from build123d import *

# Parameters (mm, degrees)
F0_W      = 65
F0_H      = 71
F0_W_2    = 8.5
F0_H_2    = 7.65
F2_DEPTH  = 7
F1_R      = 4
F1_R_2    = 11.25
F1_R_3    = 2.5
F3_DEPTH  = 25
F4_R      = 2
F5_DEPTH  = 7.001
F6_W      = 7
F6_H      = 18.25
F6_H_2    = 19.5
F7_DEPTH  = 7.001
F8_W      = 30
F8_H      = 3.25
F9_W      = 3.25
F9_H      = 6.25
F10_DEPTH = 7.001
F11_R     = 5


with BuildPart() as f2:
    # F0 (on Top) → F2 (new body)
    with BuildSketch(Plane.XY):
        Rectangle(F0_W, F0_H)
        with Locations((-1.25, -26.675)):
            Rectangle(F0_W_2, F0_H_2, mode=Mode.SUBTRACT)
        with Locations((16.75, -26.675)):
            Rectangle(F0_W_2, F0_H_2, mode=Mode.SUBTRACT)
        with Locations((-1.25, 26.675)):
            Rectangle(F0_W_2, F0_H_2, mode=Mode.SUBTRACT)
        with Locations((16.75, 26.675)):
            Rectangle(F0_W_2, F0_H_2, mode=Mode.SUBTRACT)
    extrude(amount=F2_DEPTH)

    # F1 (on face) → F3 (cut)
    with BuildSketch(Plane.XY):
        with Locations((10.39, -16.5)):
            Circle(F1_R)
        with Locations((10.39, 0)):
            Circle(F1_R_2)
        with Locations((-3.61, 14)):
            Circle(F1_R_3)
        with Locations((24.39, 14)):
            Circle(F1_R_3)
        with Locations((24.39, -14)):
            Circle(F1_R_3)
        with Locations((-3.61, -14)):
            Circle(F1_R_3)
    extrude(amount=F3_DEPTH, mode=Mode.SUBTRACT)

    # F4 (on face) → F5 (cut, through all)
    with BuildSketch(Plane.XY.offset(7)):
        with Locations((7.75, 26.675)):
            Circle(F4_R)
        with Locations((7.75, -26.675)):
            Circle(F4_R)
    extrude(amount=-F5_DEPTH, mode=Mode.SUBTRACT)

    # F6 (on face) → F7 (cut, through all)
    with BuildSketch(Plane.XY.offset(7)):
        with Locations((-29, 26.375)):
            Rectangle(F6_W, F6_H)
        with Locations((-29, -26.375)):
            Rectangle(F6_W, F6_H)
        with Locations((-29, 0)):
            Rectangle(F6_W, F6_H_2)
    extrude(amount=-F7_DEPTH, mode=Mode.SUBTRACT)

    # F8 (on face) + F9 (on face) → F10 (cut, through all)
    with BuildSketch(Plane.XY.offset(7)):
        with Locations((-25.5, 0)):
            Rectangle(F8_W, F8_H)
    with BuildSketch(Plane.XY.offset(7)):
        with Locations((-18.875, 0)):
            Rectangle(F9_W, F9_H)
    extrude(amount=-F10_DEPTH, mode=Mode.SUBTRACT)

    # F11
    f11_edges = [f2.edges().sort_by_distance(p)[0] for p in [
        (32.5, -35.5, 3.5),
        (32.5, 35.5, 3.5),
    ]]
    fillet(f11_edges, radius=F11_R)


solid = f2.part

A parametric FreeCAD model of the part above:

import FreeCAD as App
import Part
import Sketcher

V = App.Vector
Q = App.Units.Quantity


def edges_at(feature, points):
    """Names of the edges that pass closest to the given points."""
    edges = feature.Shape.Edges
    near = lambda p: min(range(len(edges)), key=lambda i: edges[i].distToShape(Part.Vertex(*p))[0])
    return sorted({f"Edge{near(p) + 1}" for p in points})

doc = App.newDocument("Part")
body = doc.addObject("PartDesign::Body", "Body")

# Sketch on XY plane
sketch1 = body.newObject("Sketcher::SketchObject", "Sketch")
sketch1.AttachmentSupport = (doc.getObject("XY_Plane"), [""])
sketch1.MapMode = "FlatFace"
sketch1.addGeometry([
    Part.LineSegment(V(-32, 36, 0), V(-32, -36, 0)),  # 0
    Part.LineSegment(V(-32, -36, 0), V(32, -36, 0)),  # 1
    Part.LineSegment(V(32, -36, 0), V(32, 36, 0)),  # 2
    Part.LineSegment(V(32, 36, 0), V(-32, 36, 0)),  # 3
    Part.LineSegment(V(3, -30, 0), V(-6, -30, 0)),  # 4
    Part.LineSegment(V(-6, -30, 0), V(-6, -23, 0)),  # 5
    Part.LineSegment(V(-6, -23, 0), V(3, -23, 0)),  # 6
    Part.LineSegment(V(3, -23, 0), V(3, -30, 0)),  # 7
    Part.LineSegment(V(21, -30, 0), V(12, -30, 0)),  # 8
    Part.LineSegment(V(12, -30, 0), V(12, -23, 0)),  # 9
    Part.LineSegment(V(12, -23, 0), V(21, -23, 0)),  # 10
    Part.LineSegment(V(21, -23, 0), V(21, -30, 0)),  # 11
    Part.LineSegment(V(3, 23, 0), V(-6, 23, 0)),  # 12
    Part.LineSegment(V(-6, 23, 0), V(-6, 30, 0)),  # 13
    Part.LineSegment(V(-6, 30, 0), V(3, 30, 0)),  # 14
    Part.LineSegment(V(3, 30, 0), V(3, 23, 0)),  # 15
    Part.LineSegment(V(21, 23, 0), V(12, 23, 0)),  # 16
    Part.LineSegment(V(12, 23, 0), V(12, 30, 0)),  # 17
    Part.LineSegment(V(12, 30, 0), V(21, 30, 0)),  # 18
    Part.LineSegment(V(21, 30, 0), V(21, 23, 0)),  # 19
], False)
sketch1.addConstraint([
    Sketcher.Constraint("Coincident", 0, 2, 1, 1),
    Sketcher.Constraint("Coincident", 1, 2, 2, 1),
    Sketcher.Constraint("Coincident", 2, 2, 3, 1),
    Sketcher.Constraint("Coincident", 3, 2, 0, 1),
    Sketcher.Constraint("Coincident", 4, 2, 5, 1),
    Sketcher.Constraint("Coincident", 5, 2, 6, 1),
    Sketcher.Constraint("Coincident", 6, 2, 7, 1),
    Sketcher.Constraint("Coincident", 7, 2, 4, 1),
    Sketcher.Constraint("Coincident", 8, 2, 9, 1),
    Sketcher.Constraint("Coincident", 9, 2, 10, 1),
    Sketcher.Constraint("Coincident", 10, 2, 11, 1),
    Sketcher.Constraint("Coincident", 11, 2, 8, 1),
    Sketcher.Constraint("Coincident", 12, 2, 13, 1),
    Sketcher.Constraint("Coincident", 13, 2, 14, 1),
    Sketcher.Constraint("Coincident", 14, 2, 15, 1),
    Sketcher.Constraint("Coincident", 15, 2, 12, 1),
    Sketcher.Constraint("Coincident", 16, 2, 17, 1),
    Sketcher.Constraint("Coincident", 17, 2, 18, 1),
    Sketcher.Constraint("Coincident", 18, 2, 19, 1),
    Sketcher.Constraint("Coincident", 19, 2, 16, 1),
    Sketcher.Constraint("Vertical", 0),
    Sketcher.Constraint("Horizontal", 1),
    Sketcher.Constraint("Vertical", 2),
    Sketcher.Constraint("Horizontal", 3),
    Sketcher.Constraint("Horizontal", 4),
    Sketcher.Constraint("Vertical", 5),
    Sketcher.Constraint("Horizontal", 6),
    Sketcher.Constraint("Vertical", 7),
    Sketcher.Constraint("Horizontal", 8),
    Sketcher.Constraint("Vertical", 9),
    Sketcher.Constraint("Horizontal", 10),
    Sketcher.Constraint("Vertical", 11),
    Sketcher.Constraint("Horizontal", 12),
    Sketcher.Constraint("Vertical", 13),
    Sketcher.Constraint("Horizontal", 14),
    Sketcher.Constraint("Vertical", 15),
    Sketcher.Constraint("Horizontal", 16),
    Sketcher.Constraint("Vertical", 17),
    Sketcher.Constraint("Horizontal", 18),
    Sketcher.Constraint("Vertical", 19),
    Sketcher.Constraint("Symmetric", 0, 2, 2, 2, -1, 1),
    Sketcher.Constraint("Symmetric", 5, 2, 12, 2, -1),
    Sketcher.Constraint("Symmetric", 7, 2, 14, 2, -1),
    Sketcher.Constraint("Symmetric", 9, 2, 16, 2, -1),
    Sketcher.Constraint("Symmetric", 11, 2, 18, 2, -1),
    Sketcher.Constraint("Horizontal", 7, 2, 8, 2),
    Sketcher.Constraint("Horizontal", 6, 2, 9, 2),
    Sketcher.Constraint("Equal", 6, 8),
    Sketcher.Constraint("DistanceX", 1, 1, 1, 2, Q("65 mm")),
    Sketcher.Constraint("DistanceY", 0, 2, 0, 1, Q("71 mm")),
    Sketcher.Constraint("DistanceX", 4, 2, 4, 1, Q("8.5 mm")),
    Sketcher.Constraint("DistanceX", -1, 1, 6, 2, Q("3 mm")),
    Sketcher.Constraint("DistanceX", -1, 1, 10, 2, Q("21 mm")),
    Sketcher.Constraint("DistanceY", 0, 2, 4, 2, Q("5 mm")),
    Sketcher.Constraint("DistanceY", 5, 1, 5, 2, Q("7.65 mm")),
])
pad1 = body.newObject("PartDesign::Pad", "Pad")
pad1.Profile = sketch1
pad1.Length = 7

# Sketch on XY plane
sketch2 = body.newObject("Sketcher::SketchObject", "Sketch001")
sketch2.AttachmentSupport = (doc.getObject("XY_Plane"), [""])
sketch2.MapMode = "FlatFace"
sketch2.addGeometry([
    Part.Circle(V(10.4, -16.5, 0), V(0, 0, 1), 4),  # 0
    Part.Circle(V(10.4, 0, 0), V(0, 0, 1), 11.2),  # 1
    Part.Circle(V(-3.6, 14, 0), V(0, 0, 1), 2.5),  # 2
    Part.Circle(V(24.4, 14, 0), V(0, 0, 1), 2.5),  # 3
    Part.Circle(V(24.4, -14, 0), V(0, 0, 1), 2.5),  # 4
    Part.Circle(V(-3.6, -14, 0), V(0, 0, 1), 2.5),  # 5
], False)
sketch2.addConstraint([
    Sketcher.Constraint("Equal", 2, 3),
    Sketcher.Constraint("Equal", 3, 4),
    Sketcher.Constraint("Equal", 4, 5),
    Sketcher.Constraint("Symmetric", 3, 3, 4, 3, -1),
    Sketcher.Constraint("Symmetric", 2, 3, 5, 3, -1),
    Sketcher.Constraint("PointOnObject", 1, 3, -1),
    Sketcher.Constraint("Horizontal", 2, 3, 3, 3),
    Sketcher.Constraint("Vertical", 0, 3, 1, 3),
    Sketcher.Constraint("Diameter", 0, Q("8 mm")),
    Sketcher.Constraint("Diameter", 2, Q("5 mm")),
    Sketcher.Constraint("Diameter", 1, Q("22.5 mm")),
    Sketcher.Constraint("DistanceY", -1, 1, 2, 3, Q("14 mm")),
    Sketcher.Constraint("DistanceX", 2, 3, 1, 3, Q("14 mm")),
    Sketcher.Constraint("DistanceX", 1, 3, 3, 3, Q("14 mm")),
    Sketcher.Constraint("DistanceY", 0, 3, -1, 1, Q("16.5 mm")),
    Sketcher.Constraint("DistanceX", -1, 1, 0, 3, Q("10.39 mm")),
])
pocket1 = body.newObject("PartDesign::Pocket", "Pocket")
pocket1.Profile = sketch2
pocket1.Length = 25
pocket1.Reversed = True

# Sketch on XY plane
sketch3 = body.newObject("Sketcher::SketchObject", "Sketch002")
sketch3.AttachmentSupport = (doc.getObject("XY_Plane"), [""])
sketch3.MapMode = "FlatFace"
sketch3.AttachmentOffset = App.Placement(V(0, 0, 7), App.Rotation())
sketch3.addGeometry([
    Part.Circle(V(7.8, 26.7, 0), V(0, 0, 1), 2),
    Part.Circle(V(7.8, -26.7, 0), V(0, 0, 1), 2),
], False)
sketch3.addConstraint([
    Sketcher.Constraint("Equal", 0, 1),
    Sketcher.Constraint("Symmetric", 0, 3, 1, 3, -1),
    Sketcher.Constraint("Diameter", 0, Q("4 mm")),
    Sketcher.Constraint("DistanceX", -1, 1, 0, 3, Q("7.75 mm")),
    Sketcher.Constraint("DistanceY", 1, 3, 0, 3, Q("53.35 mm")),
])
pocket2 = body.newObject("PartDesign::Pocket", "Pocket001")
pocket2.Profile = sketch3
pocket2.Type = "ThroughAll"

# Sketch on XY plane
sketch4 = body.newObject("Sketcher::SketchObject", "Sketch003")
sketch4.AttachmentSupport = (doc.getObject("XY_Plane"), [""])
sketch4.MapMode = "FlatFace"
sketch4.AttachmentOffset = App.Placement(V(0, 0, 7), App.Rotation())
sketch4.addGeometry([
    Part.LineSegment(V(-32, 36, 0), V(-32, 17, 0)),  # 0
    Part.LineSegment(V(-32, 17, 0), V(-26, 17, 0)),  # 1
    Part.LineSegment(V(-26, 17, 0), V(-26, 36, 0)),  # 2
    Part.LineSegment(V(-26, 36, 0), V(-32, 36, 0)),  # 3
    Part.LineSegment(V(-32, -17, 0), V(-32, -36, 0)),  # 4
    Part.LineSegment(V(-32, -36, 0), V(-26, -36, 0)),  # 5
    Part.LineSegment(V(-26, -36, 0), V(-26, -17, 0)),  # 6
    Part.LineSegment(V(-26, -17, 0), V(-32, -17, 0)),  # 7
    Part.LineSegment(V(-32, 10, 0), V(-32, -10, 0)),  # 8
    Part.LineSegment(V(-32, -10, 0), V(-26, -10, 0)),  # 9
    Part.LineSegment(V(-26, -10, 0), V(-26, 10, 0)),  # 10
    Part.LineSegment(V(-26, 10, 0), V(-32, 10, 0)),  # 11
], False)
sketch4.addConstraint([
    Sketcher.Constraint("Coincident", 0, 2, 1, 1),
    Sketcher.Constraint("Coincident", 1, 2, 2, 1),
    Sketcher.Constraint("Coincident", 2, 2, 3, 1),
    Sketcher.Constraint("Coincident", 3, 2, 0, 1),
    Sketcher.Constraint("Coincident", 4, 2, 5, 1),
    Sketcher.Constraint("Coincident", 5, 2, 6, 1),
    Sketcher.Constraint("Coincident", 6, 2, 7, 1),
    Sketcher.Constraint("Coincident", 7, 2, 4, 1),
    Sketcher.Constraint("Coincident", 8, 2, 9, 1),
    Sketcher.Constraint("Coincident", 9, 2, 10, 1),
    Sketcher.Constraint("Coincident", 10, 2, 11, 1),
    Sketcher.Constraint("Coincident", 11, 2, 8, 1),
    Sketcher.Constraint("Vertical", 0),
    Sketcher.Constraint("Horizontal", 1),
    Sketcher.Constraint("Vertical", 2),
    Sketcher.Constraint("Horizontal", 3),
    Sketcher.Constraint("Vertical", 4),
    Sketcher.Constraint("Horizontal", 5),
    Sketcher.Constraint("Vertical", 6),
    Sketcher.Constraint("Horizontal", 7),
    Sketcher.Constraint("Vertical", 8),
    Sketcher.Constraint("Horizontal", 9),
    Sketcher.Constraint("Vertical", 10),
    Sketcher.Constraint("Horizontal", 11),
    Sketcher.Constraint("Symmetric", 3, 2, 4, 2, -1),
    Sketcher.Constraint("Symmetric", 1, 2, 6, 2, -1),
    Sketcher.Constraint("Vertical", 7, 2, 8, 2),
    Sketcher.Constraint("Vertical", 6, 2, 9, 2),
    Sketcher.Constraint("DistanceX", 1, 1, 1, 2, Q("7 mm")),
    Sketcher.Constraint("DistanceY", 8, 2, 8, 1, Q("19.5 mm")),
    Sketcher.Constraint("DistanceY", 4, 2, 3, 2, Q("71 mm")),
    Sketcher.Constraint("DistanceY", 8, 2, 0, 2, Q("27 mm")),
    Sketcher.Constraint("DistanceY", 0, 2, 0, 1, Q("18.25 mm")),
    Sketcher.Constraint("DistanceX", 0, 2, -1, 1, Q("32.5 mm")),
])
pocket3 = body.newObject("PartDesign::Pocket", "Pocket002")
pocket3.Profile = sketch4
pocket3.Type = "ThroughAll"

# Sketch on XY plane
sketch5 = body.newObject("Sketcher::SketchObject", "Sketch004")
sketch5.AttachmentSupport = (doc.getObject("XY_Plane"), [""])
sketch5.MapMode = "FlatFace"
sketch5.AttachmentOffset = App.Placement(V(0, 0, 7), App.Rotation())
sketch5.addGeometry([
    Part.LineSegment(V(-40.5, 1.6, 0), V(-40.5, -1.6, 0)),  # 0
    Part.LineSegment(V(-40.5, -1.6, 0), V(-20.5, -1.6, 0)),  # 1
    Part.LineSegment(V(-20.5, -1.6, 0), V(-20.5, -3.1, 0)),  # 2
    Part.LineSegment(V(-20.5, -3.1, 0), V(-17.2, -3.1, 0)),  # 3
    Part.LineSegment(V(-17.2, -3.1, 0), V(-17.2, -1.6, 0)),  # 4
    Part.LineSegment(V(-17.2, -1.6, 0), V(-10.5, -1.6, 0)),  # 5
    Part.LineSegment(V(-10.5, -1.6, 0), V(-10.5, 1.6, 0)),  # 6
    Part.LineSegment(V(-10.5, 1.6, 0), V(-17.2, 1.6, 0)),  # 7
    Part.LineSegment(V(-17.2, 1.6, 0), V(-17.2, 3.1, 0)),  # 8
    Part.LineSegment(V(-17.2, 3.1, 0), V(-20.5, 3.1, 0)),  # 9
    Part.LineSegment(V(-20.5, 3.1, 0), V(-20.5, 1.6, 0)),  # 10
    Part.LineSegment(V(-20.5, 1.6, 0), V(-40.5, 1.6, 0)),  # 11
], False)
sketch5.addConstraint([
    Sketcher.Constraint("Coincident", 0, 2, 1, 1),
    Sketcher.Constraint("Coincident", 1, 2, 2, 1),
    Sketcher.Constraint("Coincident", 2, 2, 3, 1),
    Sketcher.Constraint("Coincident", 3, 2, 4, 1),
    Sketcher.Constraint("Coincident", 4, 2, 5, 1),
    Sketcher.Constraint("Coincident", 5, 2, 6, 1),
    Sketcher.Constraint("Coincident", 6, 2, 7, 1),
    Sketcher.Constraint("Coincident", 7, 2, 8, 1),
    Sketcher.Constraint("Coincident", 8, 2, 9, 1),
    Sketcher.Constraint("Coincident", 9, 2, 10, 1),
    Sketcher.Constraint("Coincident", 10, 2, 11, 1),
    Sketcher.Constraint("Coincident", 11, 2, 0, 1),
    Sketcher.Constraint("Vertical", 0),
    Sketcher.Constraint("Horizontal", 1),
    Sketcher.Constraint("Vertical", 2),
    Sketcher.Constraint("Horizontal", 3),
    Sketcher.Constraint("Vertical", 4),
    Sketcher.Constraint("Horizontal", 5),
    Sketcher.Constraint("Vertical", 6),
    Sketcher.Constraint("Horizontal", 7),
    Sketcher.Constraint("Vertical", 8),
    Sketcher.Constraint("Horizontal", 9),
    Sketcher.Constraint("Vertical", 10),
    Sketcher.Constraint("Horizontal", 11),
    Sketcher.Constraint("Symmetric", 4, 2, 7, 2, -1),
    Sketcher.Constraint("Symmetric", 2, 2, 9, 2, -1),
    Sketcher.Constraint("Horizontal", 1, 2, 4, 2),
    Sketcher.Constraint("Horizontal", 7, 2, 10, 2),
    Sketcher.Constraint("Equal", 9, 0),
    Sketcher.Constraint("DistanceX", 1, 1, 1, 2, Q("20 mm")),
    Sketcher.Constraint("DistanceY", 2, 2, 2, 1, Q("1.5 mm")),
    Sketcher.Constraint("DistanceX", 1, 2, 5, 2, Q("10 mm")),
    Sketcher.Constraint("DistanceX", 3, 1, 3, 2, Q("3.25 mm")),
    Sketcher.Constraint("DistanceX", 0, 2, -1, 1, Q("40.5 mm")),
])
pocket4 = body.newObject("PartDesign::Pocket", "Pocket003")
pocket4.Profile = sketch5
pocket4.Type = "ThroughAll"
doc.recompute()

fillet = body.newObject("PartDesign::Fillet", "Fillet")
fillet.Base = (pocket4, edges_at(pocket4, [(32.5, -35.5, 3.5), (32.5, 35.5, 3.5)]))
fillet.Radius = 5

doc.recompute()
